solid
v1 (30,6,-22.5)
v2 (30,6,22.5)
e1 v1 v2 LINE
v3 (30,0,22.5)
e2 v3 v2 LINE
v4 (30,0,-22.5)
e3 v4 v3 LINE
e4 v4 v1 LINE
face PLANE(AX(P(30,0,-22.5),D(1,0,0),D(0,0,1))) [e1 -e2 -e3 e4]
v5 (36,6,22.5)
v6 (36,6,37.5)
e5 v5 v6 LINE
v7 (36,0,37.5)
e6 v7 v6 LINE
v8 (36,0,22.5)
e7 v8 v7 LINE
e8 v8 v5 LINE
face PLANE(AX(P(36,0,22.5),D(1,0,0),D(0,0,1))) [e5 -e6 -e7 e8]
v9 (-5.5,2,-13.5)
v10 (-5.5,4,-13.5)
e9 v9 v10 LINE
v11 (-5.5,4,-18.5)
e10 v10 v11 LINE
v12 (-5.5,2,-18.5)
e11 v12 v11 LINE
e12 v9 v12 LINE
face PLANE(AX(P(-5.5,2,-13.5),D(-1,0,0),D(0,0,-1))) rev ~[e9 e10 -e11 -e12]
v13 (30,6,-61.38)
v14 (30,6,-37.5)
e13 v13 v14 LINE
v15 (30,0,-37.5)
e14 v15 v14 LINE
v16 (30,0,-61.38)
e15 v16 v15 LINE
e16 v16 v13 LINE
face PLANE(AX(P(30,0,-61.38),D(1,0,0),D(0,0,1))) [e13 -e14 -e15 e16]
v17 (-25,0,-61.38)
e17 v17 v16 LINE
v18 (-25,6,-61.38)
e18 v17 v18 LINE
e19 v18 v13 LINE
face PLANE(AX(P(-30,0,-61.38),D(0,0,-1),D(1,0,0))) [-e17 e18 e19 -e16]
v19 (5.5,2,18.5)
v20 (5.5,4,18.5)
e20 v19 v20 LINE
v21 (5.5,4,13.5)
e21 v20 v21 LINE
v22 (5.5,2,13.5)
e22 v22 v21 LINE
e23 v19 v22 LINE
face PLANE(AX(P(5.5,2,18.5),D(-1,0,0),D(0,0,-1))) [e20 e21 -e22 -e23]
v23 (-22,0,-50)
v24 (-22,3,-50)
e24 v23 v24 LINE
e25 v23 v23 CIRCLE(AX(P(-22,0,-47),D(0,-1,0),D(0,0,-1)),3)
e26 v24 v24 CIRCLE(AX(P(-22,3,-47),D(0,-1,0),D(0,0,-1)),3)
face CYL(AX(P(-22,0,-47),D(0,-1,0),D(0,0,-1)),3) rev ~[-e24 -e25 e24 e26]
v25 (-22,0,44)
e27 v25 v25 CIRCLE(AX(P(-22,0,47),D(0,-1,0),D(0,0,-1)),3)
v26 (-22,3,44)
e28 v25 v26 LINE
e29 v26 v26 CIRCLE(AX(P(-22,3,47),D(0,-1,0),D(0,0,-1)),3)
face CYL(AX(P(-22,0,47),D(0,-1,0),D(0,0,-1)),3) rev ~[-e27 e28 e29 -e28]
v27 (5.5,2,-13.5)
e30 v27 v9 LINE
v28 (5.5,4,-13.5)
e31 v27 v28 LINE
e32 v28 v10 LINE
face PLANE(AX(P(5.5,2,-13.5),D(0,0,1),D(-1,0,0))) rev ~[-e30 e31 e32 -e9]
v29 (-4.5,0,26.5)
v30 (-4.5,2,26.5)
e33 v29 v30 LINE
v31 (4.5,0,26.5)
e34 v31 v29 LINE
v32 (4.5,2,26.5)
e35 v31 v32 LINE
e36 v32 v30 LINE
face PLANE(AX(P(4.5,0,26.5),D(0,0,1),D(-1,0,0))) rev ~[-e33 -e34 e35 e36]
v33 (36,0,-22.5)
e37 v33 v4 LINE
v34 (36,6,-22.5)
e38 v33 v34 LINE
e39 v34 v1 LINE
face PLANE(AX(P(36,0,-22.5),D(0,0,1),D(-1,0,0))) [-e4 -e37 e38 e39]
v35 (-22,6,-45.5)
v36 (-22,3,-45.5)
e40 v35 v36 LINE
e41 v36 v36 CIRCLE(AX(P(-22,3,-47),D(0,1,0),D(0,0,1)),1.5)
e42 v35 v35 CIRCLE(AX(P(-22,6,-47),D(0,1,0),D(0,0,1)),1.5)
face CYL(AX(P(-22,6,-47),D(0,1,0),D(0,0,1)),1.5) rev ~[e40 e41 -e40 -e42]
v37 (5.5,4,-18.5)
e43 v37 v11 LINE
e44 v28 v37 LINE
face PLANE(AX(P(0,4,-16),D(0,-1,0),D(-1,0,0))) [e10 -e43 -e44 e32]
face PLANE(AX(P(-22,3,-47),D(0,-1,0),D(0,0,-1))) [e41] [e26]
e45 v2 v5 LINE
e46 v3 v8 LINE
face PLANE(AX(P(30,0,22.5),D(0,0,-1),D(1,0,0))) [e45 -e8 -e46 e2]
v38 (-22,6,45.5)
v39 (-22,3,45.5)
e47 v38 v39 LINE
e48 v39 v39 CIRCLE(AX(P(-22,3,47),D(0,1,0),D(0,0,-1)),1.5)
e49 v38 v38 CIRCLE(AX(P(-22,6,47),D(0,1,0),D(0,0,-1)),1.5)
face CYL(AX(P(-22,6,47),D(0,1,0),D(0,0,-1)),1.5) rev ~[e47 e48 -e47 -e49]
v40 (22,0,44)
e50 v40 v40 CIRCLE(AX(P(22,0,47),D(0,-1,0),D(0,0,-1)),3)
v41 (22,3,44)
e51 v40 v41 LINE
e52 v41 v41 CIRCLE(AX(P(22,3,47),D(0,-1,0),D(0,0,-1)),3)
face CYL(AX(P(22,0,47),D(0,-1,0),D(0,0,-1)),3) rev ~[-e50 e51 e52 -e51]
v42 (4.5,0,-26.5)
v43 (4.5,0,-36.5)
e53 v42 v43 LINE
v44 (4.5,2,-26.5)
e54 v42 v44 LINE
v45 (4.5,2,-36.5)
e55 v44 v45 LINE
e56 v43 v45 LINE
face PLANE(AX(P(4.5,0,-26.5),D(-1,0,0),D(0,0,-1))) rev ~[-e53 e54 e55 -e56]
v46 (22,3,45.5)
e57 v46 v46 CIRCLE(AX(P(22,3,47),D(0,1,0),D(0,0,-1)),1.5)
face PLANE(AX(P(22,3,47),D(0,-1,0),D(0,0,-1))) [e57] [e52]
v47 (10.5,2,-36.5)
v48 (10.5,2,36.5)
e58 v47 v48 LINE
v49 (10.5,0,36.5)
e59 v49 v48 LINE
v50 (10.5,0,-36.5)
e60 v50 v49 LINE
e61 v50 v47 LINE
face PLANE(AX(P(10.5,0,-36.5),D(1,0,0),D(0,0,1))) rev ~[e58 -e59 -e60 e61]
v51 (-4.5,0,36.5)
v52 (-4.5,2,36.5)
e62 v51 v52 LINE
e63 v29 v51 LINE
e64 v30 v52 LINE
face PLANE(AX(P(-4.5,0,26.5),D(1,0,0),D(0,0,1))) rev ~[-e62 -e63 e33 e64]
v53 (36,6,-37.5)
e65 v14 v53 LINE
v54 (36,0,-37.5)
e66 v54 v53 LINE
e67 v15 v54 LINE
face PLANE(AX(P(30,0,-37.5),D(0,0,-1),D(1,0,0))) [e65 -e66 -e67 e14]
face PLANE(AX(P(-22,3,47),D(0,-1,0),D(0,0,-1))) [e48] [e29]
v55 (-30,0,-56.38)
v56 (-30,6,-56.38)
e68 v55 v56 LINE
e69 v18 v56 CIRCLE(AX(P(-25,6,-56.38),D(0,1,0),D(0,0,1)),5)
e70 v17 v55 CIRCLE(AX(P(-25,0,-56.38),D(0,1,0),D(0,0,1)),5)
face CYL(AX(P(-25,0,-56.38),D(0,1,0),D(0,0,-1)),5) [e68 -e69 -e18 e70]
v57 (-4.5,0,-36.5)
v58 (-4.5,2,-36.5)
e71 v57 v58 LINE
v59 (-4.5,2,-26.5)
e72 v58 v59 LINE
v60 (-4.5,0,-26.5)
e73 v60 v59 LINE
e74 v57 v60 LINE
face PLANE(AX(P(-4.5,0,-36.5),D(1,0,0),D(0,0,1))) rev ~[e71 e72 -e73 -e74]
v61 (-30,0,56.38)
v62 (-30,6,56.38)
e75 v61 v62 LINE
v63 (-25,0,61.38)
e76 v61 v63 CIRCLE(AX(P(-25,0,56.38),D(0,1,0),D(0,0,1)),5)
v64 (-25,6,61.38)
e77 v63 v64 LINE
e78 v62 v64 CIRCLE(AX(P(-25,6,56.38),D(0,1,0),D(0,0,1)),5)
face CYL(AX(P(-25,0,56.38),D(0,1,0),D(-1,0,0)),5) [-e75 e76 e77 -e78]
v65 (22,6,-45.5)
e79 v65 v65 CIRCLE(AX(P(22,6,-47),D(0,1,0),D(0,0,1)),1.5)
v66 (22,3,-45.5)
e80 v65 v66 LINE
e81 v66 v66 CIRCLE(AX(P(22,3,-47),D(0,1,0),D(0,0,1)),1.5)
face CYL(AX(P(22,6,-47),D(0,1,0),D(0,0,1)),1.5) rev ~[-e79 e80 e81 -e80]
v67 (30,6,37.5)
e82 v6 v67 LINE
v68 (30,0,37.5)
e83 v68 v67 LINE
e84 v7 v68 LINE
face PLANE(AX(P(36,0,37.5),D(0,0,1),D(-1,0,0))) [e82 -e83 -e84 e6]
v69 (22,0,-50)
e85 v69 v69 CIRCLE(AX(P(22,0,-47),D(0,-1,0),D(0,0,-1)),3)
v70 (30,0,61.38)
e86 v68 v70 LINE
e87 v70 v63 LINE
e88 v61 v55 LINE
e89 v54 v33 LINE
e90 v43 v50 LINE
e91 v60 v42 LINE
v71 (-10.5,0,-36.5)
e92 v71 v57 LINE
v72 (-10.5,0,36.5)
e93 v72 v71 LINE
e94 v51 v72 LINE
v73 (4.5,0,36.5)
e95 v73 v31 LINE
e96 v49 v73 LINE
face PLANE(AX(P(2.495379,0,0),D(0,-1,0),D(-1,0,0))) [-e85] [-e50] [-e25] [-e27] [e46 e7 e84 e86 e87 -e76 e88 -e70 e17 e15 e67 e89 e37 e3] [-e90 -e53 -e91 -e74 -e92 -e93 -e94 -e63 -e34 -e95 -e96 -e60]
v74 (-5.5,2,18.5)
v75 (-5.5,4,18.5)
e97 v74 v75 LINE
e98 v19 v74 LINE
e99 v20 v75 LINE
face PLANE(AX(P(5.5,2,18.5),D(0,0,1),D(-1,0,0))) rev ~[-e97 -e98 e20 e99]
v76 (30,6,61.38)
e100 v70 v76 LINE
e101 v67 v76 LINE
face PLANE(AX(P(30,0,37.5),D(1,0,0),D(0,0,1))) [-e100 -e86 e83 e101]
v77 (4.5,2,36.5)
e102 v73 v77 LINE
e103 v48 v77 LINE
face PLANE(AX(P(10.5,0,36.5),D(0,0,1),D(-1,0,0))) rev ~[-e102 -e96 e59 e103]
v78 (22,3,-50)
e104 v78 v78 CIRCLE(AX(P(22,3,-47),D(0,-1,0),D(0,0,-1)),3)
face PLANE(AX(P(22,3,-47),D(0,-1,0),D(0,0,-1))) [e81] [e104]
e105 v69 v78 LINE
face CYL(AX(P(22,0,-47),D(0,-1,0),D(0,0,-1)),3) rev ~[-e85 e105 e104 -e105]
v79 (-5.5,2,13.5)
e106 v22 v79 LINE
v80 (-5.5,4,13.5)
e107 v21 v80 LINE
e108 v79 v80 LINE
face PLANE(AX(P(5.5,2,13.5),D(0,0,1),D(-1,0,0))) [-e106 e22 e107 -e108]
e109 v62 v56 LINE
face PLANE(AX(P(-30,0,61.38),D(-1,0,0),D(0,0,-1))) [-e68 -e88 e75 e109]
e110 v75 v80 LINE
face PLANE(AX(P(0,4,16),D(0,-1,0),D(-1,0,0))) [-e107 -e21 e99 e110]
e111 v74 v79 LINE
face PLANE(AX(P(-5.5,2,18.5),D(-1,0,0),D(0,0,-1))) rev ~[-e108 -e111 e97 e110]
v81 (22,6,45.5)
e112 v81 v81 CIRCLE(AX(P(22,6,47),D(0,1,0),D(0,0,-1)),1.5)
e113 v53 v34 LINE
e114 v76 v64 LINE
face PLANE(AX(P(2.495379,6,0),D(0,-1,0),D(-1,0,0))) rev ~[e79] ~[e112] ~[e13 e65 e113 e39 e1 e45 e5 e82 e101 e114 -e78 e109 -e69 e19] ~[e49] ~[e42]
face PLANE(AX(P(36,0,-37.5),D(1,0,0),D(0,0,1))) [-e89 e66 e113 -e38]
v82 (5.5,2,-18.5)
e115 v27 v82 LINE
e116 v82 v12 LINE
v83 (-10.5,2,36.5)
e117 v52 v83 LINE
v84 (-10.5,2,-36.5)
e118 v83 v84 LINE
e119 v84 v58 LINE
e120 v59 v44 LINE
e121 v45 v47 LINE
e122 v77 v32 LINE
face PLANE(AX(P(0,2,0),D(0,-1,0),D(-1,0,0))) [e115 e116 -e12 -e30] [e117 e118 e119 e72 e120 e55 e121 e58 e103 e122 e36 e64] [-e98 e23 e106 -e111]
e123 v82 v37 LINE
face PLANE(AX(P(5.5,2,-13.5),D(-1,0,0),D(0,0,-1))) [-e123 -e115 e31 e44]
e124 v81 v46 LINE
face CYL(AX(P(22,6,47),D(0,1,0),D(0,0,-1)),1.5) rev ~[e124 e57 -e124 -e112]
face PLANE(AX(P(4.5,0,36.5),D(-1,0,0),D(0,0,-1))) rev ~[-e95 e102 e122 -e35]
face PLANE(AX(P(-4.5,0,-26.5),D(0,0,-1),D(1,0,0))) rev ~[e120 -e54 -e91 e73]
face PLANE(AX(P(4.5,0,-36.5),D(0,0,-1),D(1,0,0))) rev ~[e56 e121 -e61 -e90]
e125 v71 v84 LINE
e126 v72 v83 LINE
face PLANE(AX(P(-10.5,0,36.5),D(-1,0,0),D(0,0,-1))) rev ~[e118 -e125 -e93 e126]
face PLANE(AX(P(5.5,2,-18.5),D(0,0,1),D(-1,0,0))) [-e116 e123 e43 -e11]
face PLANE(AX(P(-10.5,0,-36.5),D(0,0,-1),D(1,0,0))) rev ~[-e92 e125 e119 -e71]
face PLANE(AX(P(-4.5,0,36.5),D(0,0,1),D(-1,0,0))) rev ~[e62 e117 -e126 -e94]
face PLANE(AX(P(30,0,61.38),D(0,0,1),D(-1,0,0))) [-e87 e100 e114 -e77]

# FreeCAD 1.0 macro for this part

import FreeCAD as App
import Part
import Sketcher
Q = App.Units.Quantity


def edges_at(feature, points):
    """Names of the edges that pass closest to the given points."""
    edges = feature.Shape.Edges
    near = lambda p: min(range(len(edges)), key=lambda i: edges[i].distToShape(Part.Vertex(*p))[0])
    return sorted({f"Edge{near(p) + 1}" for p in points})

doc = App.newDocument("Part")
body = doc.addObject("PartDesign::Body", "Body")

# Sketch on XZ plane
sketch1 = body.newObject("Sketcher::SketchObject", "Sketch")
sketch1.AttachmentSupport = (doc.getObject("XZ_Plane"), [""])
sketch1.MapMode = "FlatFace"
sketch1.addGeometry([
    Part.LineSegment(App.Vector(30, -61, 0), App.Vector(-30, -61, 0)),  # 0
    Part.LineSegment(App.Vector(-30, -61, 0), App.Vector(-30, 61, 0)),  # 1
    Part.LineSegment(App.Vector(-30, 61, 0), App.Vector(30, 61, 0)),  # 2
    Part.LineSegment(App.Vector(30, 61, 0), App.Vector(30, 38, 0)),  # 3
    Part.LineSegment(App.Vector(30, 38, 0), App.Vector(36, 38, 0)),  # 4
    Part.LineSegment(App.Vector(36, 38, 0), App.Vector(36, 22, 0)),  # 5
    Part.LineSegment(App.Vector(36, 22, 0), App.Vector(30, 22, 0)),  # 6
    Part.LineSegment(App.Vector(30, 22, 0), App.Vector(30, -22, 0)),  # 7
    Part.LineSegment(App.Vector(30, -22, 0), App.Vector(36, -22, 0)),  # 8
    Part.LineSegment(App.Vector(36, -22, 0), App.Vector(36, -38, 0)),  # 9
    Part.LineSegment(App.Vector(36, -38, 0), App.Vector(30, -38, 0)),  # 10
    Part.LineSegment(App.Vector(30, -38, 0), App.Vector(30, -61, 0)),  # 11
], False)
sketch1.addConstraint([
    Sketcher.Constraint("Coincident", 0, 2, 1, 1),
    Sketcher.Constraint("Coincident", 1, 2, 2, 1),
    Sketcher.Constraint("Coincident", 2, 2, 3, 1),
    Sketcher.Constraint("Coincident", 3, 2, 4, 1),
    Sketcher.Constraint("Coincident", 4, 2, 5, 1),
    Sketcher.Constraint("Coincident", 5, 2, 6, 1),
    Sketcher.Constraint("Coincident", 6, 2, 7, 1),
    Sketcher.Constraint("Coincident", 7, 2, 8, 1),
    Sketcher.Constraint("Coincident", 8, 2, 9, 1),
    Sketcher.Constraint("Coincident", 9, 2, 10, 1),
    Sketcher.Constraint("Coincident", 10, 2, 11, 1),
    Sketcher.Constraint("Coincident", 11, 2, 0, 1),
    Sketcher.Constraint("Horizontal", 0),
    Sketcher.Constraint("Vertical", 1),
    Sketcher.Constraint("Horizontal", 2),
    Sketcher.Constraint("Vertical", 3),
    Sketcher.Constraint("Horizontal", 4),
    Sketcher.Constraint("Vertical", 5),
    Sketcher.Constraint("Horizontal", 6),
    Sketcher.Constraint("Vertical", 7),
    Sketcher.Constraint("Horizontal", 8),
    Sketcher.Constraint("Vertical", 9),
    Sketcher.Constraint("Horizontal", 10),
    Sketcher.Constraint("Vertical", 11),
    Sketcher.Constraint("Symmetric", 0, 2, 2, 2, -1, 1),
    Sketcher.Constraint("Symmetric", 5, 2, 8, 2, -1),
    Sketcher.Constraint("Symmetric", 3, 2, 10, 2, -1),
    Sketcher.Constraint("Vertical", 3, 2, 6, 2),
    Sketcher.Constraint("DistanceX", 0, 2, 0, 1, Q("60 mm")),
    Sketcher.Constraint("DistanceX", 4, 1, 4, 2, Q("6 mm")),
    Sketcher.Constraint("DistanceY", 5, 2, 5, 1, Q("15 mm")),
    Sketcher.Constraint("DistanceY", 7, 2, 7, 1, Q("45 mm")),
    Sketcher.Constraint("DistanceY", 1, 1, 1, 2, Q("122.76 mm")),
])
pad1 = body.newObject("PartDesign::Pad", "Pad")
pad1.Profile = sketch1
pad1.Length = 6
pad1.Reversed = True

# Sketch on XZ plane
sketch2 = body.newObject("Sketcher::SketchObject", "Sketch001")
sketch2.AttachmentSupport = (doc.getObject("XZ_Plane"), [""])
sketch2.MapMode = "FlatFace"
sketch2.AttachmentOffset = App.Placement(App.Vector(0, 0, -6), App.Rotation())
sketch2.addGeometry([
    Part.Circle(App.Vector(22, -47, 0), App.Vector(0, 0, 1), 1.5),
    Part.Circle(App.Vector(-22, -47, 0), App.Vector(0, 0, 1), 1.5),
    Part.Circle(App.Vector(-22, 47, 0), App.Vector(0, 0, 1), 1.5),
    Part.Circle(App.Vector(22, 47, 0), App.Vector(0, 0, 1), 1.5),
], False)
sketch2.addConstraint([
    Sketcher.Constraint("Equal", 0, 1),
    Sketcher.Constraint("Equal", 1, 2),
    Sketcher.Constraint("Equal", 2, 3),
    Sketcher.Constraint("Symmetric", 0, 3, 2, 3, -1, 1),
    Sketcher.Constraint("Symmetric", 1, 3, 3, 3, -1, 1),
    Sketcher.Constraint("Symmetric", 0, 3, 1, 3, -2),
    Sketcher.Constraint("Diameter", 0, Q("3 mm")),
    Sketcher.Constraint("DistanceX", -1, 1, 0, 3, Q("22 mm")),
    Sketcher.Constraint("DistanceY", 0, 3, -1, 1, Q("47 mm")),
])
pocket1 = body.newObject("PartDesign::Pocket", "Pocket")
pocket1.Profile = sketch2
pocket1.Length = 6
pocket1.Reversed = True
doc.recompute()

fillet = body.newObject("PartDesign::Fillet", "Fillet")
fillet.Base = (pocket1, edges_at(pocket1, [(-30, 3, -61.38), (-30, 3, 61.38)]))
fillet.Radius = 5

# Sketch on XZ plane
sketch3 = body.newObject("Sketcher::SketchObject", "Sketch002")
sketch3.AttachmentSupport = (doc.getObject("XZ_Plane"), [""])
sketch3.MapMode = "FlatFace"
sketch3.addGeometry([
    Part.Circle(App.Vector(22, 47, 0), App.Vector(0, 0, 1), 3),
    Part.Circle(App.Vector(-22, 47, 0), App.Vector(0, 0, 1), 3),
    Part.Circle(App.Vector(22, -47, 0), App.Vector(0, 0, 1), 3),
    Part.Circle(App.Vector(-22, -47, 0), App.Vector(0, 0, 1), 3),
], False)
sketch3.addConstraint([
    Sketcher.Constraint("Equal", 0, 1),
    Sketcher.Constraint("Equal", 1, 2),
    Sketcher.Constraint("Equal", 2, 3),
    Sketcher.Constraint("Symmetric", 1, 3, 2, 3, -1, 1),
    Sketcher.Constraint("Symmetric", 0, 3, 3, 3, -1, 1),
    Sketcher.Constraint("Symmetric", 0, 3, 1, 3, -2),
    Sketcher.Constraint("Diameter", 0, Q("6 mm")),
    Sketcher.Constraint("DistanceX", -1, 1, 0, 3, Q("22 mm")),
    Sketcher.Constraint("DistanceY", -1, 1, 0, 3, Q("47 mm")),
])
pocket2 = body.newObject("PartDesign::Pocket", "Pocket001")
pocket2.Profile = sketch3
pocket2.Length = 3

# Sketch on XZ plane
sketch4 = body.newObject("Sketcher::SketchObject", "Sketch003")
sketch4.AttachmentSupport = (doc.getObject("XZ_Plane"), [""])
sketch4.MapMode = "FlatFace"
sketch4.addGeometry([
    Part.LineSegment(App.Vector(-10, 36, 0), App.Vector(-10, -36, 0)),  # 0
    Part.LineSegment(App.Vector(-10, -36, 0), App.Vector(-4, -36, 0)),  # 1
    Part.LineSegment(App.Vector(-4, -36, 0), App.Vector(-4, -26, 0)),  # 2
    Part.LineSegment(App.Vector(-4, -26, 0), App.Vector(4, -26, 0)),  # 3
    Part.LineSegment(App.Vector(4, -26, 0), App.Vector(4, -36, 0)),  # 4
    Part.LineSegment(App.Vector(4, -36, 0), App.Vector(10, -36, 0)),  # 5
    Part.LineSegment(App.Vector(10, -36, 0), App.Vector(10, 36, 0)),  # 6
    Part.LineSegment(App.Vector(10, 36, 0), App.Vector(4, 36, 0)),  # 7
    Part.LineSegment(App.Vector(4, 36, 0), App.Vector(4, 26, 0)),  # 8
    Part.LineSegment(App.Vector(4, 26, 0), App.Vector(-4, 26, 0)),  # 9
    Part.LineSegment(App.Vector(-4, 26, 0), App.Vector(-4, 36, 0)),  # 10
    Part.LineSegment(App.Vector(-4, 36, 0), App.Vector(-10, 36, 0)),  # 11
], False)
sketch4.addConstraint([
    Sketcher.Constraint("Coincident", 0, 2, 1, 1),
    Sketcher.Constraint("Coincident", 1, 2, 2, 1),
    Sketcher.Constraint("Coincident", 2, 2, 3, 1),
    Sketcher.Constraint("Coincident", 3, 2, 4, 1),
    Sketcher.Constraint("Coincident", 4, 2, 5, 1),
    Sketcher.Constraint("Coincident", 5, 2, 6, 1),
    Sketcher.Constraint("Coincident", 6, 2, 7, 1),
    Sketcher.Constraint("Coincident", 7, 2, 8, 1),
    Sketcher.Constraint("Coincident", 8, 2, 9, 1),
    Sketcher.Constraint("Coincident", 9, 2, 10, 1),
    Sketcher.Constraint("Coincident", 10, 2, 11, 1),
    Sketcher.Constraint("Coincident", 11, 2, 0, 1),
    Sketcher.Constraint("Vertical", 0),
    Sketcher.Constraint("Horizontal", 1),
    Sketcher.Constraint("Vertical", 2),
    Sketcher.Constraint("Horizontal", 3),
    Sketcher.Constraint("Vertical", 4),
    Sketcher.Constraint("Horizontal", 5),
    Sketcher.Constraint("Vertical", 6),
    Sketcher.Constraint("Horizontal", 7),
    Sketcher.Constraint("Vertical", 8),
    Sketcher.Constraint("Horizontal", 9),
    Sketcher.Constraint("Vertical", 10),
    Sketcher.Constraint("Horizontal", 11),
    Sketcher.Constraint("Symmetric", 0, 2, 6, 2, -1, 1),
    Sketcher.Constraint("Symmetric", 2, 2, 8, 2, -1, 1),
    Sketcher.Constraint("Symmetric", 4, 2, 10, 2, -1, 1),
    Sketcher.Constraint("Symmetric", 1, 2, 4, 2, -2),
    Sketcher.Constraint("DistanceX", 1, 1, 1, 2, Q("6 mm")),
    Sketcher.Constraint("DistanceX", 3, 1, 3, 2, Q("9 mm")),
    Sketcher.Constraint("DistanceY", 0, 2, 0, 1, Q("73 mm")),
    Sketcher.Constraint("DistanceY", 2, 1, 2, 2, Q("10 mm")),
])
pocket3 = body.newObject("PartDesign::Pocket", "Pocket002")
pocket3.Profile = sketch4
pocket3.Length = 2

# Sketch on XZ plane
sketch5 = body.newObject("Sketcher::SketchObject", "Sketch004")
sketch5.AttachmentSupport = (doc.getObject("XZ_Plane"), [""])
sketch5.MapMode = "FlatFace"
sketch5.AttachmentOffset = App.Placement(App.Vector(0, 0, -2), App.Rotation())
sketch5.addGeometry([
    Part.LineSegment(App.Vector(6, 14, 0), App.Vector(6, 18, 0)),  # 0
    Part.LineSegment(App.Vector(6, 18, 0), App.Vector(-6, 18, 0)),  # 1
    Part.LineSegment(App.Vector(-6, 18, 0), App.Vector(-6, 14, 0)),  # 2
    Part.LineSegment(App.Vector(-6, 14, 0), App.Vector(6, 14, 0)),  # 3
    Part.LineSegment(App.Vector(6, -18, 0), App.Vector(6, -14, 0)),  # 4
    Part.LineSegment(App.Vector(6, -14, 0), App.Vector(-6, -14, 0)),  # 5
    Part.LineSegment(App.Vector(-6, -14, 0), App.Vector(-6, -18, 0)),  # 6
    Part.LineSegment(App.Vector(-6, -18, 0), App.Vector(6, -18, 0)),  # 7
], False)
sketch5.addConstraint([
    Sketcher.Constraint("Coincident", 0, 2, 1, 1),
    Sketcher.Constraint("Coincident", 1, 2, 2, 1),
    Sketcher.Constraint("Coincident", 2, 2, 3, 1),
    Sketcher.Constraint("Coincident", 3, 2, 0, 1),
    Sketcher.Constraint("Coincident", 4, 2, 5, 1),
    Sketcher.Constraint("Coincident", 5, 2, 6, 1),
    Sketcher.Constraint("Coincident", 6, 2, 7, 1),
    Sketcher.Constraint("Coincident", 7, 2, 4, 1),
    Sketcher.Constraint("Vertical", 0),
    Sketcher.Constraint("Horizontal", 1),
    Sketcher.Constraint("Vertical", 2),
    Sketcher.Constraint("Horizontal", 3),
    Sketcher.Constraint("Vertical", 4),
    Sketcher.Constraint("Horizontal", 5),
    Sketcher.Constraint("Vertical", 6),
    Sketcher.Constraint("Horizontal", 7),
    Sketcher.Constraint("Symmetric", 2, 2, 4, 2, -1, 1),
    Sketcher.Constraint("Symmetric", 0, 2, 6, 2, -1, 1),
    Sketcher.Constraint("Vertical", 3, 2, 4, 2),
    Sketcher.Constraint("DistanceX", 1, 2, 1, 1, Q("11 mm")),
    Sketcher.Constraint("DistanceY", 0, 1, 0, 2, Q("5 mm")),
    Sketcher.Constraint("DistanceY", 4, 2, 3, 2, Q("27 mm")),
])
pocket4 = body.newObject("PartDesign::Pocket", "Pocket003")
pocket4.Profile = sketch5
pocket4.Length = 2

doc.recompute()
